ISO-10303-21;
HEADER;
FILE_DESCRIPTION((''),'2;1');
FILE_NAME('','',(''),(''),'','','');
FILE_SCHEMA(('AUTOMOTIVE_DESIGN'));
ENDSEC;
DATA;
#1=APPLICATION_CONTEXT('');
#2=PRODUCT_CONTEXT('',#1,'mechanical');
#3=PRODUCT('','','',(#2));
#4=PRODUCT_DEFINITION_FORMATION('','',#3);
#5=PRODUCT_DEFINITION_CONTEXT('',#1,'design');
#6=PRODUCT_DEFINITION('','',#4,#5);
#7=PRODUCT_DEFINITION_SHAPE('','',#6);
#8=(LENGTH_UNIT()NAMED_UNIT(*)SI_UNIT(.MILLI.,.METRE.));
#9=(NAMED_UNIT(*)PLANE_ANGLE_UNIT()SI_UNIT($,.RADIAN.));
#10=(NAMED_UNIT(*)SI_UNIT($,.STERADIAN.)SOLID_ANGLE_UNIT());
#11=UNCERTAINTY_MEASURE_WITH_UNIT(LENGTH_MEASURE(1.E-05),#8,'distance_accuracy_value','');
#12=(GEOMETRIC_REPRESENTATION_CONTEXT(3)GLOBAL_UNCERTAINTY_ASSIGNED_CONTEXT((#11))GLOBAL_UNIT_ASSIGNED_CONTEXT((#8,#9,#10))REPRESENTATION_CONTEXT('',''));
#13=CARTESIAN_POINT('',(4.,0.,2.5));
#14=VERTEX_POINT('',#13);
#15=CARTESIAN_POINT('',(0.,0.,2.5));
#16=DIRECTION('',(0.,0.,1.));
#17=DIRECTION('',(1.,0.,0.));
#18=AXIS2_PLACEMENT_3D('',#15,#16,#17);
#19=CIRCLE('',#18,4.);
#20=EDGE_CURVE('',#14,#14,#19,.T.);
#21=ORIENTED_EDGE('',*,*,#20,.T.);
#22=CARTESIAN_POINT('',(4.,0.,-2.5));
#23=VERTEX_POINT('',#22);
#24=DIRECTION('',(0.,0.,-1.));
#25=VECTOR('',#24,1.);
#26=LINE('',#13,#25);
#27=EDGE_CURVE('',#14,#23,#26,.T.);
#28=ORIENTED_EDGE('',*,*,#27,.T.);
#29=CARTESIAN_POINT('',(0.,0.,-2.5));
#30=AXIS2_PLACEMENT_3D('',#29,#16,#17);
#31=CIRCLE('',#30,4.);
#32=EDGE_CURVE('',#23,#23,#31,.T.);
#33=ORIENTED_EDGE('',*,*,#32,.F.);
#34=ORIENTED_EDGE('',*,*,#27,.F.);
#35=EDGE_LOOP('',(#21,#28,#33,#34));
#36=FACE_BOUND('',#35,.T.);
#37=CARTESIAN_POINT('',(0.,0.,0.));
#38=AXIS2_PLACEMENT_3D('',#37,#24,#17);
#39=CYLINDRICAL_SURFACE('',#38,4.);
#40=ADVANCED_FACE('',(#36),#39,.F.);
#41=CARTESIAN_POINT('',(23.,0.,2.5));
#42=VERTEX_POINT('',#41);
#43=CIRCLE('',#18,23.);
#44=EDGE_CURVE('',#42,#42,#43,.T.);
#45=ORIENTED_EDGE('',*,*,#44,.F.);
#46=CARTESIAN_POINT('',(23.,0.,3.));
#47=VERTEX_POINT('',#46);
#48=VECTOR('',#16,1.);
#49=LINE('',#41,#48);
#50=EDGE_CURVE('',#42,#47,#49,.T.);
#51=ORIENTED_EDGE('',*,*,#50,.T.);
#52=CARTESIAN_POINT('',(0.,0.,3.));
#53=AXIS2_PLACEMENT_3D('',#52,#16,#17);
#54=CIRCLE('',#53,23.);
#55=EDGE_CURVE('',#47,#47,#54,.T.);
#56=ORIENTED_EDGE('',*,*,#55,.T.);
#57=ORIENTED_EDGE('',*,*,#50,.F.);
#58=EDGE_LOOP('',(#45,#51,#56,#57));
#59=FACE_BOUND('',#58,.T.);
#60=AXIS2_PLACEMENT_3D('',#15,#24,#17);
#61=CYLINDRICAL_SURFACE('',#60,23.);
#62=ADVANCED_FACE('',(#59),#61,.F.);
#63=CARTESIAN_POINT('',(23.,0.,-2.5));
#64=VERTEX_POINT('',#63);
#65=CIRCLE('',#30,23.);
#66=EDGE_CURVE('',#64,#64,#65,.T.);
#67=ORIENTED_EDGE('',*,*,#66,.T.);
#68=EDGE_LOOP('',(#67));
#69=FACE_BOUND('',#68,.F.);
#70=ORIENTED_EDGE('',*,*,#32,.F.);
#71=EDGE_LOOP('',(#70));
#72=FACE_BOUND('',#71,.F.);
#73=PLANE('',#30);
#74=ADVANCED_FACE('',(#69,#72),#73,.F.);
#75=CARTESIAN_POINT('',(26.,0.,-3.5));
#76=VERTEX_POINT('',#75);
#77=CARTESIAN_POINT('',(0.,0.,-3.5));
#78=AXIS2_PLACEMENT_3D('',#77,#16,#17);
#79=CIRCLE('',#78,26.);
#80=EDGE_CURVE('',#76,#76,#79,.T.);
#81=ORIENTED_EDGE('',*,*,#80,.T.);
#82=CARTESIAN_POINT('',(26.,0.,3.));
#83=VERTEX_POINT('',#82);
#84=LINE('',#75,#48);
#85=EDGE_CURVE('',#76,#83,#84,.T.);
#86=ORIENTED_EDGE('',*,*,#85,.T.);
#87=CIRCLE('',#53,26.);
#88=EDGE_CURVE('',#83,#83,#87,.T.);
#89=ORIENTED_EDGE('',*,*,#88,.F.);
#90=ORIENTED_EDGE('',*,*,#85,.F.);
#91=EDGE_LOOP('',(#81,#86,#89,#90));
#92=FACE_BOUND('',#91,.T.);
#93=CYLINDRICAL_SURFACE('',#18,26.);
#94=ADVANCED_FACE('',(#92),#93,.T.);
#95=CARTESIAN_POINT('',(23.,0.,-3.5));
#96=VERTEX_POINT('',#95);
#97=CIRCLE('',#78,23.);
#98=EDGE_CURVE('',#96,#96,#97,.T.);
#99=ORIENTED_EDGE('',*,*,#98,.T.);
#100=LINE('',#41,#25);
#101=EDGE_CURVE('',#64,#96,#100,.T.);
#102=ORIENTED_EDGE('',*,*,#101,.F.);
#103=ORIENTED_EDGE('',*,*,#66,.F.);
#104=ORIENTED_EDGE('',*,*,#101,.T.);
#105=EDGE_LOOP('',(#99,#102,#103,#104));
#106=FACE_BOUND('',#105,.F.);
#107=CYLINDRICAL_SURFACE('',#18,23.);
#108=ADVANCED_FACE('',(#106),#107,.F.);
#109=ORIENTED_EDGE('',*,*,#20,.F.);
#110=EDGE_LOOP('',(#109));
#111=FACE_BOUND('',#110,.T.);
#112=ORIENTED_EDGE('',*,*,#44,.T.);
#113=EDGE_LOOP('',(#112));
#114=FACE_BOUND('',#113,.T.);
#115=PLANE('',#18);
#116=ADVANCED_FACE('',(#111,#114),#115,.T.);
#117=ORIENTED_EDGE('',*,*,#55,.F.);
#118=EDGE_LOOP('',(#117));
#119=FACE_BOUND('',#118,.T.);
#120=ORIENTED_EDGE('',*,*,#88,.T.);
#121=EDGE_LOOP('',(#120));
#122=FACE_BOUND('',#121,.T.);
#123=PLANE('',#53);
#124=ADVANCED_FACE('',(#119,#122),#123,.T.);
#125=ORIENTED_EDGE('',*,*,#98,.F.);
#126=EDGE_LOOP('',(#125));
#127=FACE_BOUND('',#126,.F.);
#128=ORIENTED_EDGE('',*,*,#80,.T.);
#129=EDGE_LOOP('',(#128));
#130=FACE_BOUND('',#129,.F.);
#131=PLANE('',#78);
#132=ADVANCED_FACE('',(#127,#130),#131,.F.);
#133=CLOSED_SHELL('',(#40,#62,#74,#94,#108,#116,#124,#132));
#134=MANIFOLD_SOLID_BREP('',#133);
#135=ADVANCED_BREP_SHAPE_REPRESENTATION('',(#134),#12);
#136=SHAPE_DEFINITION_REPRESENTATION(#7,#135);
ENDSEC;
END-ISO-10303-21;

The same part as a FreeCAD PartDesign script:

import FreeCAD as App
import Part
import Sketcher

V = App.Vector

doc = App.newDocument("Part")
params = doc.addObject("Spreadsheet::Sheet", "Params")
for row, (alias, value) in enumerate([
    ("sketch1_diameter", "46 mm"),
    ("sketch1_diameter2", "8 mm"),
    ("pad1_length", "5 mm"),
    ("sketch2_diameter", "52 mm"),
    ("sketch2_diameter2", "46 mm"),
    ("pad2_length", "6 mm"),
    ("pad2_length2", "0.5 mm"),
], start=1):
    params.set(f"A{row}", alias)
    params.set(f"B{row}", "=" + value)
    params.setAlias(f"B{row}", alias)

body = doc.addObject("PartDesign::Body", "Body")

sketch1 = body.newObject("Sketcher::SketchObject", "Sketch")
sketch1.AttachmentSupport = (doc.getObject("XY_Plane"), [""])
sketch1.MapMode = "FlatFace"
sketch1.addGeometry([
    Part.Circle(V(0, 0, 0), V(0, 0, 1), 23),
    Part.Circle(V(0, 0, 0), V(0, 0, 1), 4),
], False)
sketch1.addConstraint([
    Sketcher.Constraint("Coincident", 0, 3, -1, 1),
    Sketcher.Constraint("Coincident", 1, 3, -1, 1),
    Sketcher.Constraint("Diameter", 0, 46.0),
    Sketcher.Constraint("Diameter", 1, 8.0),
])
sketch1.setExpression("Constraints[2]", "Params.sketch1_diameter")
sketch1.setExpression("Constraints[3]", "Params.sketch1_diameter2")
pad1 = body.newObject("PartDesign::Pad", "Pad")
pad1.Profile = sketch1
pad1.setExpression("Length", "Params.pad1_length")
pad1.Midplane = True

sketch2 = body.newObject("Sketcher::SketchObject", "Sketch001")
sketch2.AttachmentSupport = (doc.getObject("XY_Plane"), [""])
sketch2.MapMode = "FlatFace"
sketch2.AttachmentOffset = App.Placement(V(0, 0, 2.5), App.Rotation())
sketch2.addGeometry([
    Part.Circle(V(0, 0, 0), V(0, 0, 1), 26),
    Part.Circle(V(0, 0, 0), V(0, 0, 1), 23),
], False)
sketch2.addConstraint([
    Sketcher.Constraint("Coincident", 0, 3, -1, 1),
    Sketcher.Constraint("Coincident", 1, 3, -1, 1),
    Sketcher.Constraint("Diameter", 0, 52.0),
    Sketcher.Constraint("Diameter", 1, 46.0),
])
sketch2.setExpression("Constraints[2]", "Params.sketch2_diameter")
sketch2.setExpression("Constraints[3]", "Params.sketch2_diameter2")
pad2 = body.newObject("PartDesign::Pad", "Pad001")
pad2.Profile = sketch2
pad2.Type = "TwoLengths"
pad2.setExpression("Length", "Params.pad2_length")
pad2.setExpression("Length2", "Params.pad2_length2")
pad2.Reversed = True

doc.recompute()
